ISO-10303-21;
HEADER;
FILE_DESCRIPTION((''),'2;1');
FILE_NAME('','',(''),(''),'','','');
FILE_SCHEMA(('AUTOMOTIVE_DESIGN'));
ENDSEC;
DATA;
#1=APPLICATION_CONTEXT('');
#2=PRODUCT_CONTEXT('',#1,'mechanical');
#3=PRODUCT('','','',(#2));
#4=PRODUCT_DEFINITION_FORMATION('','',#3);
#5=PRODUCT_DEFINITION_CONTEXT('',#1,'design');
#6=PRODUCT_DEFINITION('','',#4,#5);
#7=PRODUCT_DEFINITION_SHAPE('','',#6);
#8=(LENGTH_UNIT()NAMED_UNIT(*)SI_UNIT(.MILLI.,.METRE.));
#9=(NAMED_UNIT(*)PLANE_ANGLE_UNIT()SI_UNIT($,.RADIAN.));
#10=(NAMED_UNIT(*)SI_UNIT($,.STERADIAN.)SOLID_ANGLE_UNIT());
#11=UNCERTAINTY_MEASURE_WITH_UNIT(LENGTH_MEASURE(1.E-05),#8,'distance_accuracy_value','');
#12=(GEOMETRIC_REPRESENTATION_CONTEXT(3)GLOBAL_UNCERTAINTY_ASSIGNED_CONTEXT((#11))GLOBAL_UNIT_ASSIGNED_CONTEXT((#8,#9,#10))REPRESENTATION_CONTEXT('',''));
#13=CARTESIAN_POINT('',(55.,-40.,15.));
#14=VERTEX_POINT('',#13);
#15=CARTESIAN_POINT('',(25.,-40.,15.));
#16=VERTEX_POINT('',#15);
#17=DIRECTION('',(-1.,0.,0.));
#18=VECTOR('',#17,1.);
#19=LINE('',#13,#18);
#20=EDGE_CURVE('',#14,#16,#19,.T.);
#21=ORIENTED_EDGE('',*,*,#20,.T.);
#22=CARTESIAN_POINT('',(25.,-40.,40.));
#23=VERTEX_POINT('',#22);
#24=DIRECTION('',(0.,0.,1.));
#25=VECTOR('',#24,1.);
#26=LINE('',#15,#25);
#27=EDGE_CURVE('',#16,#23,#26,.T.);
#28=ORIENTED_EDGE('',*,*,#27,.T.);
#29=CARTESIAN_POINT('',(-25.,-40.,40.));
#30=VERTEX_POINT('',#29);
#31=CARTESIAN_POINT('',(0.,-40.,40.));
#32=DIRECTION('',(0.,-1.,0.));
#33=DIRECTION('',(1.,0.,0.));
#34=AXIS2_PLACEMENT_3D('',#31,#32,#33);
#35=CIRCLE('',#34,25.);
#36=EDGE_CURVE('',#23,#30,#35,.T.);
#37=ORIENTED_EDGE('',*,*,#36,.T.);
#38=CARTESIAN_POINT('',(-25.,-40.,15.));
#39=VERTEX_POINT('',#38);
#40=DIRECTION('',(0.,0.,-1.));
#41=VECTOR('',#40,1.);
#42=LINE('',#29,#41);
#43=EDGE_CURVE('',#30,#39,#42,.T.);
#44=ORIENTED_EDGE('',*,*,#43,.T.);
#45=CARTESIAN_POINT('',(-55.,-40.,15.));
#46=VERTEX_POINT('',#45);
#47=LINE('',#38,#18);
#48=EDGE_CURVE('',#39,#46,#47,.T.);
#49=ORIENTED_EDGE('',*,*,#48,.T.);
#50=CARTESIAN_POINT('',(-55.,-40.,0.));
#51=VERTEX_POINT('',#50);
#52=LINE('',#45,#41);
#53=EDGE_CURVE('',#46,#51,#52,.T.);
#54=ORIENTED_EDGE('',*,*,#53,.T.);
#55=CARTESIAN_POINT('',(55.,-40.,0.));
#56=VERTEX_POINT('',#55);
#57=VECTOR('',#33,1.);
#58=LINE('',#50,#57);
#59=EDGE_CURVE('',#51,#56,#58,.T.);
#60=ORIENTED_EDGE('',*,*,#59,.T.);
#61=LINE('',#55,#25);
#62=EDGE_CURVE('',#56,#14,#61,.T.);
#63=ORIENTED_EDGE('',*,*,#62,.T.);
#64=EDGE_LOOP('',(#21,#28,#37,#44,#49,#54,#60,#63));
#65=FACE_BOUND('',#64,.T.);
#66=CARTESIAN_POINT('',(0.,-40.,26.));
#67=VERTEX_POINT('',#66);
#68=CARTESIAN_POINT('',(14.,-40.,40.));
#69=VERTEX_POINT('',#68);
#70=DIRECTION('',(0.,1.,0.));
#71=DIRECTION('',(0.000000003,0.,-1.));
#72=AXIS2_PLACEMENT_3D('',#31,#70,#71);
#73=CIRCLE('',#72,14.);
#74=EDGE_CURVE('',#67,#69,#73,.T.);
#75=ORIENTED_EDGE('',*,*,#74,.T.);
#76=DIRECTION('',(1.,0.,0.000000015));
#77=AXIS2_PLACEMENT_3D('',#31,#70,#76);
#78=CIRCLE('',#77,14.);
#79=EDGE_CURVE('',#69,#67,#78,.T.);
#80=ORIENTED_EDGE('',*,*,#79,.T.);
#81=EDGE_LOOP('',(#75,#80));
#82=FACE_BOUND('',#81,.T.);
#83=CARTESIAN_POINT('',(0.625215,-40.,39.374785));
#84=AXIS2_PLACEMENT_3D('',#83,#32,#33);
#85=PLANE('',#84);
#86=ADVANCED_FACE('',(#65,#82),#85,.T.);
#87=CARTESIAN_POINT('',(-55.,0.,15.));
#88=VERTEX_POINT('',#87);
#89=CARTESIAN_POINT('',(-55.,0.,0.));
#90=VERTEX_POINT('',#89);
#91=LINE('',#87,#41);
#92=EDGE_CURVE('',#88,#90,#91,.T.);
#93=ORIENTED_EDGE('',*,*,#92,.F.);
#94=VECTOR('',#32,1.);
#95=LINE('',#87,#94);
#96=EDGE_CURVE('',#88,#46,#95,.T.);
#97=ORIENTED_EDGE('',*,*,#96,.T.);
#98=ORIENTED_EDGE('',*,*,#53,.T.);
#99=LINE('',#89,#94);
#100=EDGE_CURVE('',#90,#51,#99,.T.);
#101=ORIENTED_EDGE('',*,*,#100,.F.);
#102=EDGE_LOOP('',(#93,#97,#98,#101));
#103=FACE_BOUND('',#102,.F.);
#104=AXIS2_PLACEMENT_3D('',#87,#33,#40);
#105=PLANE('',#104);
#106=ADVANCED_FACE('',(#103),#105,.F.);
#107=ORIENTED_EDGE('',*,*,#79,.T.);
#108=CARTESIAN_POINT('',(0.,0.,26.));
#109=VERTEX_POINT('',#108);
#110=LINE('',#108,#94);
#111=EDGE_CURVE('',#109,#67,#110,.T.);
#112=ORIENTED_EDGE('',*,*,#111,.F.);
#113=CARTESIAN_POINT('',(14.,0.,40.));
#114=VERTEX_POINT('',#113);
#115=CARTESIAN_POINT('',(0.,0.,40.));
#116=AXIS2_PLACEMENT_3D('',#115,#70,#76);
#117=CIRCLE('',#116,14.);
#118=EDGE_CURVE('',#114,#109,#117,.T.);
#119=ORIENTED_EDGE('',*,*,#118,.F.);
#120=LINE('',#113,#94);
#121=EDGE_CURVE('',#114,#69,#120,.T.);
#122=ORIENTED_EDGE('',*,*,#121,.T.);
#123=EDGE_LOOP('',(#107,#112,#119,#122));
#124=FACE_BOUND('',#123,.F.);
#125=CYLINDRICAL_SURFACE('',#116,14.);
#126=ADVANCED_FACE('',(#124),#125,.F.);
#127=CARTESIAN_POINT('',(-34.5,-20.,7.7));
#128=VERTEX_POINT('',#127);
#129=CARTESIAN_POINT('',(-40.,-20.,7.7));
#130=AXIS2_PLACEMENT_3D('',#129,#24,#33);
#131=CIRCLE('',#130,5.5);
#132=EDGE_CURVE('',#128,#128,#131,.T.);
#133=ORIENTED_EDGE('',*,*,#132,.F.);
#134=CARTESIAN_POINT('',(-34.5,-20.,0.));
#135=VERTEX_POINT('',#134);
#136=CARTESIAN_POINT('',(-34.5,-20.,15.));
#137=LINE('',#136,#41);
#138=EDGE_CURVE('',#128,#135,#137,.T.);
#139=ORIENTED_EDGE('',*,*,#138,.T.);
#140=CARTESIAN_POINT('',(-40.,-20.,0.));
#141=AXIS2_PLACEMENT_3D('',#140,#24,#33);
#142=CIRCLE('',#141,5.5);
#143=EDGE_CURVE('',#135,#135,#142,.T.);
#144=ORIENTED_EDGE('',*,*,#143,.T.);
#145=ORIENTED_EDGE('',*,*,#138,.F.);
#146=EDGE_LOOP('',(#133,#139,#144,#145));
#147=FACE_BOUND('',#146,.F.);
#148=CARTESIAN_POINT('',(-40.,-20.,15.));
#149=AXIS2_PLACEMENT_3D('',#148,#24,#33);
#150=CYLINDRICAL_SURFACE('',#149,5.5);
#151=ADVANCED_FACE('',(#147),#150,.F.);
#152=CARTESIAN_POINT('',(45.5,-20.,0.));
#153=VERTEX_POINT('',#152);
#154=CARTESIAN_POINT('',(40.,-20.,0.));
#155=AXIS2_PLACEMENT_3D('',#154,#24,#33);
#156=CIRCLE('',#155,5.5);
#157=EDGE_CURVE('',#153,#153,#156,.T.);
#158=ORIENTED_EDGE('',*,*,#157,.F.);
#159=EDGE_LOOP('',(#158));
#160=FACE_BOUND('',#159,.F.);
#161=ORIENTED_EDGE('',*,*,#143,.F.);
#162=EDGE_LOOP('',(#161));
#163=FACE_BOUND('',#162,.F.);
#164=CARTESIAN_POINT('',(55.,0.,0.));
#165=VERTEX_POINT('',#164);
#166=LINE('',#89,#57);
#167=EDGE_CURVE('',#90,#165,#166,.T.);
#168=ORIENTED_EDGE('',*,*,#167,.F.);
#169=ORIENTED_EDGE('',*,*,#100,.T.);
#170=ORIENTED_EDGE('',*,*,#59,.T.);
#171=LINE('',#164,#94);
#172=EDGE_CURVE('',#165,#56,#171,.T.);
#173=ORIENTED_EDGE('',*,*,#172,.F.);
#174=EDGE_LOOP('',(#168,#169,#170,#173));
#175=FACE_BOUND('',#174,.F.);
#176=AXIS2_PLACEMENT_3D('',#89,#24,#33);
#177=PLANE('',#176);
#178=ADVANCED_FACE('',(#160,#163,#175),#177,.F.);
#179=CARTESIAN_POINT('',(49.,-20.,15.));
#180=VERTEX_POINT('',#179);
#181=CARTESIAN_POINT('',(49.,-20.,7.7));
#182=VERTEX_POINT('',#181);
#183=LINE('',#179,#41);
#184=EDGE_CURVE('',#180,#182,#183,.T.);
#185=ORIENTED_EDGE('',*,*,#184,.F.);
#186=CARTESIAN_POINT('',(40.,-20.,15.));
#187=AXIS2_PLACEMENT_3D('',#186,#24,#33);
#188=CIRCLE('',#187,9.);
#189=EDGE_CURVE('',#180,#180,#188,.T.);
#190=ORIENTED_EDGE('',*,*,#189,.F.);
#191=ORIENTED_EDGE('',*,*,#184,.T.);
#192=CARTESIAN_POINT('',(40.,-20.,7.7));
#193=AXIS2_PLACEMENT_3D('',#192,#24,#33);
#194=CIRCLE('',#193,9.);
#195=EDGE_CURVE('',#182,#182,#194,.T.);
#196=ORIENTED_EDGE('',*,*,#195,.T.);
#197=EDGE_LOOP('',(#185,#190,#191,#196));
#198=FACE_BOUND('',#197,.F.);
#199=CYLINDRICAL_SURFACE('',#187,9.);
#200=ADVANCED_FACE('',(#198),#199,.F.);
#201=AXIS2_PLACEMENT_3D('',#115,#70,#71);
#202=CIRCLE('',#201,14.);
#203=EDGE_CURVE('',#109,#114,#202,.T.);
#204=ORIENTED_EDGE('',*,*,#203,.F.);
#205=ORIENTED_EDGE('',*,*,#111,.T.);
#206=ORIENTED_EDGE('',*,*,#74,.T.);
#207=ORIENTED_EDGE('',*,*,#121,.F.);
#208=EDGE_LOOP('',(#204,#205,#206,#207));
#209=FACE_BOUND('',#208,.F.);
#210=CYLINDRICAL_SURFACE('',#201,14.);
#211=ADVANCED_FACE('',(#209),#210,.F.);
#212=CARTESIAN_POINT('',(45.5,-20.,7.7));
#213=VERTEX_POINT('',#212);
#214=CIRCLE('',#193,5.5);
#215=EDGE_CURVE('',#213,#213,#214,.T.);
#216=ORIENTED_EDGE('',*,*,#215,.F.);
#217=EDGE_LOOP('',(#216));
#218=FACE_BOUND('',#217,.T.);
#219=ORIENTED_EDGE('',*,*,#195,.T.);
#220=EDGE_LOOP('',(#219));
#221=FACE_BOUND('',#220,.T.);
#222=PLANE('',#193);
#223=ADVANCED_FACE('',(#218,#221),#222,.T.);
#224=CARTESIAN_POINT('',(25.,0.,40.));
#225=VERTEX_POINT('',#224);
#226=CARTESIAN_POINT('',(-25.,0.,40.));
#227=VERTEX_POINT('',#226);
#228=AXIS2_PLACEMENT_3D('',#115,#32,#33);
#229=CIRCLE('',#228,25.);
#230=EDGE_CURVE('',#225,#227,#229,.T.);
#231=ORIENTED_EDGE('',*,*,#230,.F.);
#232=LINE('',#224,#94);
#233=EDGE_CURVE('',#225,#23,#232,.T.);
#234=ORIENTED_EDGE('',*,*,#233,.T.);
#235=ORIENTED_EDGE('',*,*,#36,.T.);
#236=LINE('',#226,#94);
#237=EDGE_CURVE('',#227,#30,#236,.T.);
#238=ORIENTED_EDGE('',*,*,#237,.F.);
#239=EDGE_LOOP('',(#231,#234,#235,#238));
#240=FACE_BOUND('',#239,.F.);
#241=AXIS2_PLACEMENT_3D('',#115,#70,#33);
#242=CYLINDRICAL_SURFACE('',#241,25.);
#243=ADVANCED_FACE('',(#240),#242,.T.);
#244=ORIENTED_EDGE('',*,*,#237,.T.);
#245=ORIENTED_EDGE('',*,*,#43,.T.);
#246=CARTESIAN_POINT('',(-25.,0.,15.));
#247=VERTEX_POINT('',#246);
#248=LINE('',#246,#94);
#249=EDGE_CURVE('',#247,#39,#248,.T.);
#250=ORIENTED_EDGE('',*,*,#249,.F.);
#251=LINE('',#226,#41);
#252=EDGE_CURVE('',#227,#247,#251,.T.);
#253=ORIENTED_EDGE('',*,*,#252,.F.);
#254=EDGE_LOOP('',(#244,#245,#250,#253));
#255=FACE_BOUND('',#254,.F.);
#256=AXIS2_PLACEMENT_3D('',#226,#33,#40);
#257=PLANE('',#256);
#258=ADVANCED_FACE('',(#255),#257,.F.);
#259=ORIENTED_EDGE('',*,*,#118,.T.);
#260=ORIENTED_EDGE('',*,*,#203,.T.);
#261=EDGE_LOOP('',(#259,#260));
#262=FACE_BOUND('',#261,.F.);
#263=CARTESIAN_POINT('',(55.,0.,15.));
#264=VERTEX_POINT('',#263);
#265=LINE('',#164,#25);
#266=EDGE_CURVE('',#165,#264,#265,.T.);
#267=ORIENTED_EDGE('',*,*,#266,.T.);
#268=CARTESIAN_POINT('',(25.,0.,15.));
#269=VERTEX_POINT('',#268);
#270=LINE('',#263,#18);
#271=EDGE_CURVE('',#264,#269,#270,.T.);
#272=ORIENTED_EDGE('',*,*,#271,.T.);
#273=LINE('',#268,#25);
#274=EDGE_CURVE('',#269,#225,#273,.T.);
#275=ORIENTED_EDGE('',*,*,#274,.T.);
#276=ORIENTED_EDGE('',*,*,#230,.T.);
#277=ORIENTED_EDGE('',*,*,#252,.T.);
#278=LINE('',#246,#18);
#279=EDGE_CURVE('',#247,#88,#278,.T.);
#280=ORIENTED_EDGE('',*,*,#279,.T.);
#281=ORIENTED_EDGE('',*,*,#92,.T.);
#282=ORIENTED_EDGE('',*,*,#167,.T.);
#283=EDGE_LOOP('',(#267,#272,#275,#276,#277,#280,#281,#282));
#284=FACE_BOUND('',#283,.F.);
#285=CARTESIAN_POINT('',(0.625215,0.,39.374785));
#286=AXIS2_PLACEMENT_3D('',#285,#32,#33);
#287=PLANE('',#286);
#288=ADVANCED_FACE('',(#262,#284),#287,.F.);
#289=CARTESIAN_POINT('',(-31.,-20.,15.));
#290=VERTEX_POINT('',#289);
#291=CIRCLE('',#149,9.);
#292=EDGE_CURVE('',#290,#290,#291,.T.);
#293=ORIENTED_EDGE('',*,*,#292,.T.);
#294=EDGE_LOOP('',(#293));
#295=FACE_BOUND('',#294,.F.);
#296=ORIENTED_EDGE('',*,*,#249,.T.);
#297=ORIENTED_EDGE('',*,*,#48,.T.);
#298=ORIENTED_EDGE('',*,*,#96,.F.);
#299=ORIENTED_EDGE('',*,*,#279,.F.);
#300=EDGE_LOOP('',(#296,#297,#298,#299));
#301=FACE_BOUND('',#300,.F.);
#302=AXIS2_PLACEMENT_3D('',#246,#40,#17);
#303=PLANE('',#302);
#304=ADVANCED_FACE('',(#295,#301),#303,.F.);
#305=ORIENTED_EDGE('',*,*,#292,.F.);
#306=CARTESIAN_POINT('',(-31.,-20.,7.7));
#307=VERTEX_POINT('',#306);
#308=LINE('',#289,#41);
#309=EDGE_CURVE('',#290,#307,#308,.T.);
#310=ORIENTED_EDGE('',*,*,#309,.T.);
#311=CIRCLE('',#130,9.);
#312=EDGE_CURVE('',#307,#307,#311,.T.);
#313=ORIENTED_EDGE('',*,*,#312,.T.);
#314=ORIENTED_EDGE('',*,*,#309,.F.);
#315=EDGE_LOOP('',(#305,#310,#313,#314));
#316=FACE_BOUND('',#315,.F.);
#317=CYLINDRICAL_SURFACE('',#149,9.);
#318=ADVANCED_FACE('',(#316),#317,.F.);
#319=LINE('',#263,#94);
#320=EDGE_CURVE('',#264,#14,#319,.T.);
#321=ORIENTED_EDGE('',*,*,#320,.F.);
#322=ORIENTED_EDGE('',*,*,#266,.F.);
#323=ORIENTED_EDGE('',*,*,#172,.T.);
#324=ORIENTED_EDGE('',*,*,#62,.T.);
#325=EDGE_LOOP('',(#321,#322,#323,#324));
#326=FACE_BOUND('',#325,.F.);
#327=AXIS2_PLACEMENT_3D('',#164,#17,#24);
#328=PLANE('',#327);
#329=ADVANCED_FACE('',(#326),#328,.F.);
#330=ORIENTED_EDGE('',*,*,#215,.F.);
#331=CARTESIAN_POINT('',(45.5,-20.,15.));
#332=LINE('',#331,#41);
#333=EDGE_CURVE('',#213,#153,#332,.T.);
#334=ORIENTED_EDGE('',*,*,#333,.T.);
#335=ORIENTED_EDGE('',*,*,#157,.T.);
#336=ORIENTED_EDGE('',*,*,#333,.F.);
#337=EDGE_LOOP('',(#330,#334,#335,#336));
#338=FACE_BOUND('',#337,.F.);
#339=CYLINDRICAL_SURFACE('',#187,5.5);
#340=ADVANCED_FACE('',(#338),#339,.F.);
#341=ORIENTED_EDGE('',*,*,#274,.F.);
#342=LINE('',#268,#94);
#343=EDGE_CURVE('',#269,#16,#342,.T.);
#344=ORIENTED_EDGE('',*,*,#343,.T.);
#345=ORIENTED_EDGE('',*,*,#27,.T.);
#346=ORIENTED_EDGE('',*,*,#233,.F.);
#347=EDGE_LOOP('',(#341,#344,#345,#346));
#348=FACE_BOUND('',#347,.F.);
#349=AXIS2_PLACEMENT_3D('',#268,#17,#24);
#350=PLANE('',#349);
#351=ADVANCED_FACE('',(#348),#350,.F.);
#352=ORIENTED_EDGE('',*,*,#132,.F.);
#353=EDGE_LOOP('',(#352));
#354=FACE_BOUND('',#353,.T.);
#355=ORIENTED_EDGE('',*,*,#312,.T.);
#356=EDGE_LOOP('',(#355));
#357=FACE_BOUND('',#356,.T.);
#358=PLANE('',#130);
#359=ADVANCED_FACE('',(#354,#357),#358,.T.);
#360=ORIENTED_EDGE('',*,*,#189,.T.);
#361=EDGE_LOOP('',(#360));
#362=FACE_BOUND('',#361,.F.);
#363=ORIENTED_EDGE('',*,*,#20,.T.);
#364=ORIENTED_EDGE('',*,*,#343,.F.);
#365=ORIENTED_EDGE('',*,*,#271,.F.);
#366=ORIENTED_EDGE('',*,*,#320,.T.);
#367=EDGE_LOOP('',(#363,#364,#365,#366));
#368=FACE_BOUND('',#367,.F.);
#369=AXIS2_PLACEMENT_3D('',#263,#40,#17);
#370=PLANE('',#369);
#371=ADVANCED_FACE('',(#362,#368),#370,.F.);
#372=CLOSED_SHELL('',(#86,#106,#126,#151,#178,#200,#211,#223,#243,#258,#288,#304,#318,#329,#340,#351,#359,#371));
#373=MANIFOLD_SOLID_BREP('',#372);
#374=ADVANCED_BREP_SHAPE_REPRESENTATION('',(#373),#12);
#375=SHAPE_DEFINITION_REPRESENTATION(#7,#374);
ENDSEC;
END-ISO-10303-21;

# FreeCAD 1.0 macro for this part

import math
import FreeCAD as App
import Part
import Sketcher
from FreeCAD import Vector

doc = App.newDocument("Part")
body = doc.addObject("PartDesign::Body", "Body")

# Sketch on XZ plane
sketch1 = doc.addObject("Sketcher::SketchObject", "Sketch")
body.addObject(sketch1)
sketch1.AttachmentSupport = (doc.XZ_Plane, [""])
sketch1.MapMode = "FlatFace"
sketch1.addGeometry([
    Part.LineSegment(Vector(-55, 15, 0), Vector(-55, 0, 0)),  # 0
    Part.LineSegment(Vector(-55, 0, 0), Vector(55, 0, 0)),  # 1
    Part.LineSegment(Vector(55, 0, 0), Vector(55, 15, 0)),  # 2
    Part.LineSegment(Vector(55, 15, 0), Vector(25, 15, 0)),  # 3
    Part.LineSegment(Vector(25, 15, 0), Vector(25, 40, 0)),  # 4
    Part.ArcOfCircle(Part.Circle(Vector(0, 40, 0), Vector(0, 0, 1), 25), math.radians(0), math.radians(180)),  # 5
    Part.LineSegment(Vector(-25, 40, 0), Vector(-25, 15, 0)),  # 6
    Part.LineSegment(Vector(-25, 15, 0), Vector(-55, 15, 0)),  # 7
    Part.ArcOfCircle(Part.Circle(Vector(0, 40, 0), Vector(0, 0, 1), 14), math.radians(0), math.radians(270)),  # 8
    Part.ArcOfCircle(Part.Circle(Vector(0, 40, 0), Vector(0, 0, 1), 14), math.radians(-90), math.radians(0)),  # 9
], False)
sketch1.addConstraint([
    Sketcher.Constraint("Coincident", 0, 2, 1, 1),
    Sketcher.Constraint("Coincident", 1, 2, 2, 1),
    Sketcher.Constraint("Coincident", 2, 2, 3, 1),
    Sketcher.Constraint("Coincident", 3, 2, 4, 1),
    Sketcher.Constraint("Tangent", 4, 2, 5, 1),
    Sketcher.Constraint("Tangent", 5, 2, 6, 1),
    Sketcher.Constraint("Coincident", 6, 2, 7, 1),
    Sketcher.Constraint("Coincident", 7, 2, 0, 1),
    Sketcher.Constraint("Tangent", 8, 1, 9, 2),
    Sketcher.Constraint("Coincident", 9, 1, 8, 2),
    Sketcher.Constraint("Vertical", 0),
    Sketcher.Constraint("Horizontal", 1),
    Sketcher.Constraint("Vertical", 2),
    Sketcher.Constraint("Horizontal", 3),
    Sketcher.Constraint("Vertical", 4),
    Sketcher.Constraint("Vertical", 6),
    Sketcher.Constraint("Horizontal", 7),
    Sketcher.Constraint("Coincident", 8, 3, 5, 3),
    Sketcher.Constraint("Symmetric", 0, 2, 1, 2, -1, 1),
    Sketcher.Constraint("Symmetric", 3, 2, 6, 2, -2),
    Sketcher.Constraint("PointOnObject", 9, 1, -2),
    Sketcher.Constraint("Horizontal", 5, 2, 8, 1),
    Sketcher.Constraint("Radius", 5, 25.0),
    Sketcher.Constraint("Radius", 8, 14.0),
    Sketcher.Constraint("DistanceX", 1, 1, 1, 2, 110.0),
    Sketcher.Constraint("DistanceY", 0, 2, 0, 1, 15.0),
    Sketcher.Constraint("DistanceY", 4, 1, 4, 2, 25.0),
])
pad1 = doc.addObject("PartDesign::Pad", "Pad")
body.addObject(pad1)
pad1.Profile = sketch1
pad1.Length = 40

# Sketch on XY plane
sketch2 = doc.addObject("Sketcher::SketchObject", "Sketch001")
body.addObject(sketch2)
sketch2.AttachmentSupport = (doc.XY_Plane, [""])
sketch2.MapMode = "FlatFace"
sketch2.AttachmentOffset = App.Placement(Vector(0, 0, 15), App.Rotation())
sketch2.addGeometry([
    Part.Circle(Vector(-40, -20, 0), Vector(0, 0, 1), 6),
    Part.Circle(Vector(40, -20, 0), Vector(0, 0, 1), 6),
], False)
sketch2.addConstraint([
    Sketcher.Constraint("Equal", 0, 1),
    Sketcher.Constraint("Symmetric", 0, 3, 1, 3, -2),
    Sketcher.Constraint("Diameter", 0, 11.0),
    Sketcher.Constraint("DistanceX", 0, 3, -1, 1, 40.0),
    Sketcher.Constraint("DistanceY", 0, 3, -1, 1, 20.0),
])
pocket1 = doc.addObject("PartDesign::Pocket", "Pocket")
body.addObject(pocket1)
pocket1.Profile = sketch2
pocket1.Length = 25

# Sketch on XY plane
sketch3 = doc.addObject("Sketcher::SketchObject", "Sketch002")
body.addObject(sketch3)
sketch3.AttachmentSupport = (doc.XY_Plane, [""])
sketch3.MapMode = "FlatFace"
sketch3.AttachmentOffset = App.Placement(Vector(0, 0, 15), App.Rotation())
sketch3.addGeometry([
    Part.Circle(Vector(-40, -20, 0), Vector(0, 0, 1), 9),
    Part.Circle(Vector(-40, -20, 0), Vector(0, 0, 1), 6),
    Part.Circle(Vector(40, -20, 0), Vector(0, 0, 1), 9),
    Part.Circle(Vector(40, -20, 0), Vector(0, 0, 1), 6),
], False)
sketch3.addConstraint([
    Sketcher.Constraint("Coincident", 1, 3, 0, 3),
    Sketcher.Constraint("Coincident", 3, 3, 2, 3),
    Sketcher.Constraint("Equal", 0, 2),
    Sketcher.Constraint("Equal", 1, 3),
    Sketcher.Constraint("Symmetric", 0, 3, 2, 3, -2),
    Sketcher.Constraint("Diameter", 0, 18.0),
    Sketcher.Constraint("Diameter", 1, 11.0),
    Sketcher.Constraint("DistanceX", 0, 3, -1, 1, 40.0),
    Sketcher.Constraint("DistanceY", 0, 3, -1, 1, 20.0),
])
pocket2 = doc.addObject("PartDesign::Pocket", "Pocket001")
body.addObject(pocket2)
pocket2.Profile = sketch3
pocket2.Length = 7.3

doc.recompute()
